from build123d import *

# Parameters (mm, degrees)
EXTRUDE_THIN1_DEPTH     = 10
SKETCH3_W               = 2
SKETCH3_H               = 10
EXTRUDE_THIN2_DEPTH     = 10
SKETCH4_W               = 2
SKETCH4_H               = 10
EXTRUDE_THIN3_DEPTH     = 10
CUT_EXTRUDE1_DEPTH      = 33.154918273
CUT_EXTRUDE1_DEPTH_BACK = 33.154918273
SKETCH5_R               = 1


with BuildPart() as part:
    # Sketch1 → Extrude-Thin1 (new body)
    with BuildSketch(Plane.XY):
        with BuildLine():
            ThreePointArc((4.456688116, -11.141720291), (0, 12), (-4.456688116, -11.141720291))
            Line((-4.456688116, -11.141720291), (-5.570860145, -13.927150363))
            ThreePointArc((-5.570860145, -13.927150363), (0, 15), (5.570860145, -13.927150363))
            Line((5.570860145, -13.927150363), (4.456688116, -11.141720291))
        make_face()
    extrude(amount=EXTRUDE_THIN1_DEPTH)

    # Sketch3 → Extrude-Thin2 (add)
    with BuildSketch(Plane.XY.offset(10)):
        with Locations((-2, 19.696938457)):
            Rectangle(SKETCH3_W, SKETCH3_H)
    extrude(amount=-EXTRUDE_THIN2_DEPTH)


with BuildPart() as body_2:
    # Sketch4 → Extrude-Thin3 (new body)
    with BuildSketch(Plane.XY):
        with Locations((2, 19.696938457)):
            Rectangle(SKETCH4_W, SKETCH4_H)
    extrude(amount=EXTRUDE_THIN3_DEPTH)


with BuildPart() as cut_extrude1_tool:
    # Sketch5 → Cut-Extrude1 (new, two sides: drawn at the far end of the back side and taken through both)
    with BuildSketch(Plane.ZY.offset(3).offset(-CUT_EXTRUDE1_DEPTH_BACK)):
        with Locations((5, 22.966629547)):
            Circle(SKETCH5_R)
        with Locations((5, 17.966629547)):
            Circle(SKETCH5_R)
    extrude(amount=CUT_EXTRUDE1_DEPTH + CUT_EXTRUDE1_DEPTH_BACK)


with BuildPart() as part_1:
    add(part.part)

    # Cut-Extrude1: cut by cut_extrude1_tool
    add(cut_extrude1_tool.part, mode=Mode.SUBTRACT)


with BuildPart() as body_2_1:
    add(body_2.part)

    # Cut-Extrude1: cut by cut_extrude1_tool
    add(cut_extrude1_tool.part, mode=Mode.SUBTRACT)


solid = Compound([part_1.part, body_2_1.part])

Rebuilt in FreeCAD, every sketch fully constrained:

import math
import FreeCAD as App
import Part
import Sketcher
from FreeCAD import Vector

doc = App.newDocument("Part")
body = doc.addObject("PartDesign::Body", "Body")

# Sketch on XY plane
sketch1 = doc.addObject("Sketcher::SketchObject", "Sketch")
body.addObject(sketch1)
sketch1.AttachmentSupport = (doc.XY_Plane, [""])
sketch1.MapMode = "FlatFace"
sketch1.addGeometry([
    Part.ArcOfCircle(Part.Circle(Vector(0, 0, 0), Vector(0, 0, 1), 12), math.radians(-68), math.radians(248)),
    Part.LineSegment(Vector(4.5, -11.1, 0), Vector(5.6, -13.9, 0)),
    Part.ArcOfCircle(Part.Circle(Vector(0, 0, 0), Vector(0, 0, 1), 15), math.radians(-68), math.radians(248)),
    Part.LineSegment(Vector(-5.6, -13.9, 0), Vector(-4.5, -11.1, 0)),
], False)
sketch1.addConstraint([
    Sketcher.Constraint("Coincident", 0, 1, 1, 1),
    Sketcher.Constraint("Coincident", 1, 2, 2, 1),
    Sketcher.Constraint("Coincident", 2, 2, 3, 1),
    Sketcher.Constraint("Coincident", 3, 2, 0, 2),
    Sketcher.Constraint("Coincident", 0, 3, -1, 1),
    Sketcher.Constraint("Coincident", 2, 3, -1, 1),
    Sketcher.Constraint("Horizontal", 1, 2, 2, 2),
    Sketcher.Constraint("Horizontal", 0, 1, 3, 2),
    Sketcher.Constraint("Radius", 0, 12.0),
    Sketcher.Constraint("Radius", 2, 15.0),
    Sketcher.Constraint("DistanceX", -1, 1, 0, 1, 4.456688),
    Sketcher.Constraint("DistanceX", -1, 1, 1, 2, 5.57086),
])
pad1 = doc.addObject("PartDesign::Pad", "Pad")
body.addObject(pad1)
pad1.Profile = sketch1
pad1.Length = 10

# Sketch on XY plane
sketch2 = doc.addObject("Sketcher::SketchObject", "Sketch001")
body.addObject(sketch2)
sketch2.AttachmentSupport = (doc.XY_Plane, [""])
sketch2.MapMode = "FlatFace"
sketch2.AttachmentOffset = App.Placement(Vector(0, 0, 10), App.Rotation())
sketch2.addGeometry([
    Part.LineSegment(Vector(-3, 24.7, 0), Vector(-3, 14.7, 0)),
    Part.LineSegment(Vector(-3, 14.7, 0), Vector(-1, 14.7, 0)),
    Part.LineSegment(Vector(-1, 14.7, 0), Vector(-1, 24.7, 0)),
    Part.LineSegment(Vector(-1, 24.7, 0), Vector(-3, 24.7, 0)),
], False)
sketch2.addConstraint([
    Sketcher.Constraint("Coincident", 0, 2, 1, 1),
    Sketcher.Constraint("Coincident", 1, 2, 2, 1),
    Sketcher.Constraint("Coincident", 2, 2, 3, 1),
    Sketcher.Constraint("Coincident", 3, 2, 0, 1),
    Sketcher.Constraint("Vertical", 0),
    Sketcher.Constraint("Horizontal", 1),
    Sketcher.Constraint("Vertical", 2),
    Sketcher.Constraint("Horizontal", 3),
    Sketcher.Constraint("DistanceX", 1, 1, 1, 2, 2.0),
    Sketcher.Constraint("DistanceY", 0, 2, 0, 1, 10.0),
    Sketcher.Constraint("DistanceX", 0, 2, -1, 1, 3.0),
    Sketcher.Constraint("DistanceY", -1, 1, 0, 2, 14.696938),
])
pad2 = doc.addObject("PartDesign::Pad", "Pad001")
body.addObject(pad2)
pad2.Profile = sketch2
pad2.Length = 10
pad2.Reversed = True
body2 = doc.addObject("PartDesign::Body", "Body001")

# Sketch on XY plane
sketch3 = doc.addObject("Sketcher::SketchObject", "Sketch002")
body2.addObject(sketch3)
sketch3.AttachmentSupport = (doc.getObject("XY_Plane001"), [""])
sketch3.MapMode = "FlatFace"
sketch3.addGeometry([
    Part.LineSegment(Vector(1, 24.7, 0), Vector(1, 14.7, 0)),
    Part.LineSegment(Vector(1, 14.7, 0), Vector(3, 14.7, 0)),
    Part.LineSegment(Vector(3, 14.7, 0), Vector(3, 24.7, 0)),
    Part.LineSegment(Vector(3, 24.7, 0), Vector(1, 24.7, 0)),
], False)
sketch3.addConstraint([
    Sketcher.Constraint("Coincident", 0, 2, 1, 1),
    Sketcher.Constraint("Coincident", 1, 2, 2, 1),
    Sketcher.Constraint("Coincident", 2, 2, 3, 1),
    Sketcher.Constraint("Coincident", 3, 2, 0, 1),
    Sketcher.Constraint("Vertical", 0),
    Sketcher.Constraint("Horizontal", 1),
    Sketcher.Constraint("Vertical", 2),
    Sketcher.Constraint("Horizontal", 3),
    Sketcher.Constraint("DistanceX", 1, 1, 1, 2, 2.0),
    Sketcher.Constraint("DistanceY", 0, 2, 0, 1, 10.0),
    Sketcher.Constraint("DistanceX", -1, 1, 0, 2, 1.0),
    Sketcher.Constraint("DistanceY", -1, 1, 0, 2, 14.696938),
])
pad3 = doc.addObject("PartDesign::Pad", "Pad002")
body2.addObject(pad3)
pad3.Profile = sketch3
pad3.Length = 10
body3 = doc.addObject("PartDesign::Body", "Body002")
body3.AllowCompound = True

# Sketch on YZ plane
sketch4 = doc.addObject("Sketcher::SketchObject", "Sketch003")
body3.addObject(sketch4)
sketch4.AttachmentSupport = (doc.getObject("YZ_Plane002"), [""])
sketch4.MapMode = "FlatFace"
sketch4.AttachmentOffset = App.Placement(Vector(0, 0, -3), App.Rotation())
sketch4.addGeometry([
    Part.Circle(Vector(23, 5, 0), Vector(0, 0, 1), 1),
    Part.Circle(Vector(18, 5, 0), Vector(0, 0, 1), 1),
], False)
sketch4.addConstraint([
    Sketcher.Constraint("Equal", 0, 1),
    Sketcher.Constraint("Horizontal", 0, 3, 1, 3),
    Sketcher.Constraint("Diameter", 0, 2.0),
    Sketcher.Constraint("DistanceY", -1, 1, 0, 3, 5.0),
    Sketcher.Constraint("DistanceX", 1, 3, 0, 3, 5.0),
    Sketcher.Constraint("DistanceX", -1, 1, 0, 3, 22.96663),
])
pad4 = doc.addObject("PartDesign::Pad", "Pad003")
body3.addObject(pad4)
pad4.Profile = sketch4
pad4.Type = "TwoLengths"
pad4.Length = 33.154918
pad4.Length2 = 33.154918
pad4.Reversed = True
doc.recompute()

body4 = doc.addObject("PartDesign::Body", "Body003")
body4.BaseFeature = body3
boolean = doc.addObject("PartDesign::Boolean", "Boolean")
body.addObject(boolean)
boolean.Type = "Cut"
boolean.addObjects([body4])
doc.recompute()

boolean2 = doc.addObject("PartDesign::Boolean", "Boolean001")
body2.addObject(boolean2)
boolean2.Type = "Cut"
boolean2.addObjects([body3])

doc.recompute()
